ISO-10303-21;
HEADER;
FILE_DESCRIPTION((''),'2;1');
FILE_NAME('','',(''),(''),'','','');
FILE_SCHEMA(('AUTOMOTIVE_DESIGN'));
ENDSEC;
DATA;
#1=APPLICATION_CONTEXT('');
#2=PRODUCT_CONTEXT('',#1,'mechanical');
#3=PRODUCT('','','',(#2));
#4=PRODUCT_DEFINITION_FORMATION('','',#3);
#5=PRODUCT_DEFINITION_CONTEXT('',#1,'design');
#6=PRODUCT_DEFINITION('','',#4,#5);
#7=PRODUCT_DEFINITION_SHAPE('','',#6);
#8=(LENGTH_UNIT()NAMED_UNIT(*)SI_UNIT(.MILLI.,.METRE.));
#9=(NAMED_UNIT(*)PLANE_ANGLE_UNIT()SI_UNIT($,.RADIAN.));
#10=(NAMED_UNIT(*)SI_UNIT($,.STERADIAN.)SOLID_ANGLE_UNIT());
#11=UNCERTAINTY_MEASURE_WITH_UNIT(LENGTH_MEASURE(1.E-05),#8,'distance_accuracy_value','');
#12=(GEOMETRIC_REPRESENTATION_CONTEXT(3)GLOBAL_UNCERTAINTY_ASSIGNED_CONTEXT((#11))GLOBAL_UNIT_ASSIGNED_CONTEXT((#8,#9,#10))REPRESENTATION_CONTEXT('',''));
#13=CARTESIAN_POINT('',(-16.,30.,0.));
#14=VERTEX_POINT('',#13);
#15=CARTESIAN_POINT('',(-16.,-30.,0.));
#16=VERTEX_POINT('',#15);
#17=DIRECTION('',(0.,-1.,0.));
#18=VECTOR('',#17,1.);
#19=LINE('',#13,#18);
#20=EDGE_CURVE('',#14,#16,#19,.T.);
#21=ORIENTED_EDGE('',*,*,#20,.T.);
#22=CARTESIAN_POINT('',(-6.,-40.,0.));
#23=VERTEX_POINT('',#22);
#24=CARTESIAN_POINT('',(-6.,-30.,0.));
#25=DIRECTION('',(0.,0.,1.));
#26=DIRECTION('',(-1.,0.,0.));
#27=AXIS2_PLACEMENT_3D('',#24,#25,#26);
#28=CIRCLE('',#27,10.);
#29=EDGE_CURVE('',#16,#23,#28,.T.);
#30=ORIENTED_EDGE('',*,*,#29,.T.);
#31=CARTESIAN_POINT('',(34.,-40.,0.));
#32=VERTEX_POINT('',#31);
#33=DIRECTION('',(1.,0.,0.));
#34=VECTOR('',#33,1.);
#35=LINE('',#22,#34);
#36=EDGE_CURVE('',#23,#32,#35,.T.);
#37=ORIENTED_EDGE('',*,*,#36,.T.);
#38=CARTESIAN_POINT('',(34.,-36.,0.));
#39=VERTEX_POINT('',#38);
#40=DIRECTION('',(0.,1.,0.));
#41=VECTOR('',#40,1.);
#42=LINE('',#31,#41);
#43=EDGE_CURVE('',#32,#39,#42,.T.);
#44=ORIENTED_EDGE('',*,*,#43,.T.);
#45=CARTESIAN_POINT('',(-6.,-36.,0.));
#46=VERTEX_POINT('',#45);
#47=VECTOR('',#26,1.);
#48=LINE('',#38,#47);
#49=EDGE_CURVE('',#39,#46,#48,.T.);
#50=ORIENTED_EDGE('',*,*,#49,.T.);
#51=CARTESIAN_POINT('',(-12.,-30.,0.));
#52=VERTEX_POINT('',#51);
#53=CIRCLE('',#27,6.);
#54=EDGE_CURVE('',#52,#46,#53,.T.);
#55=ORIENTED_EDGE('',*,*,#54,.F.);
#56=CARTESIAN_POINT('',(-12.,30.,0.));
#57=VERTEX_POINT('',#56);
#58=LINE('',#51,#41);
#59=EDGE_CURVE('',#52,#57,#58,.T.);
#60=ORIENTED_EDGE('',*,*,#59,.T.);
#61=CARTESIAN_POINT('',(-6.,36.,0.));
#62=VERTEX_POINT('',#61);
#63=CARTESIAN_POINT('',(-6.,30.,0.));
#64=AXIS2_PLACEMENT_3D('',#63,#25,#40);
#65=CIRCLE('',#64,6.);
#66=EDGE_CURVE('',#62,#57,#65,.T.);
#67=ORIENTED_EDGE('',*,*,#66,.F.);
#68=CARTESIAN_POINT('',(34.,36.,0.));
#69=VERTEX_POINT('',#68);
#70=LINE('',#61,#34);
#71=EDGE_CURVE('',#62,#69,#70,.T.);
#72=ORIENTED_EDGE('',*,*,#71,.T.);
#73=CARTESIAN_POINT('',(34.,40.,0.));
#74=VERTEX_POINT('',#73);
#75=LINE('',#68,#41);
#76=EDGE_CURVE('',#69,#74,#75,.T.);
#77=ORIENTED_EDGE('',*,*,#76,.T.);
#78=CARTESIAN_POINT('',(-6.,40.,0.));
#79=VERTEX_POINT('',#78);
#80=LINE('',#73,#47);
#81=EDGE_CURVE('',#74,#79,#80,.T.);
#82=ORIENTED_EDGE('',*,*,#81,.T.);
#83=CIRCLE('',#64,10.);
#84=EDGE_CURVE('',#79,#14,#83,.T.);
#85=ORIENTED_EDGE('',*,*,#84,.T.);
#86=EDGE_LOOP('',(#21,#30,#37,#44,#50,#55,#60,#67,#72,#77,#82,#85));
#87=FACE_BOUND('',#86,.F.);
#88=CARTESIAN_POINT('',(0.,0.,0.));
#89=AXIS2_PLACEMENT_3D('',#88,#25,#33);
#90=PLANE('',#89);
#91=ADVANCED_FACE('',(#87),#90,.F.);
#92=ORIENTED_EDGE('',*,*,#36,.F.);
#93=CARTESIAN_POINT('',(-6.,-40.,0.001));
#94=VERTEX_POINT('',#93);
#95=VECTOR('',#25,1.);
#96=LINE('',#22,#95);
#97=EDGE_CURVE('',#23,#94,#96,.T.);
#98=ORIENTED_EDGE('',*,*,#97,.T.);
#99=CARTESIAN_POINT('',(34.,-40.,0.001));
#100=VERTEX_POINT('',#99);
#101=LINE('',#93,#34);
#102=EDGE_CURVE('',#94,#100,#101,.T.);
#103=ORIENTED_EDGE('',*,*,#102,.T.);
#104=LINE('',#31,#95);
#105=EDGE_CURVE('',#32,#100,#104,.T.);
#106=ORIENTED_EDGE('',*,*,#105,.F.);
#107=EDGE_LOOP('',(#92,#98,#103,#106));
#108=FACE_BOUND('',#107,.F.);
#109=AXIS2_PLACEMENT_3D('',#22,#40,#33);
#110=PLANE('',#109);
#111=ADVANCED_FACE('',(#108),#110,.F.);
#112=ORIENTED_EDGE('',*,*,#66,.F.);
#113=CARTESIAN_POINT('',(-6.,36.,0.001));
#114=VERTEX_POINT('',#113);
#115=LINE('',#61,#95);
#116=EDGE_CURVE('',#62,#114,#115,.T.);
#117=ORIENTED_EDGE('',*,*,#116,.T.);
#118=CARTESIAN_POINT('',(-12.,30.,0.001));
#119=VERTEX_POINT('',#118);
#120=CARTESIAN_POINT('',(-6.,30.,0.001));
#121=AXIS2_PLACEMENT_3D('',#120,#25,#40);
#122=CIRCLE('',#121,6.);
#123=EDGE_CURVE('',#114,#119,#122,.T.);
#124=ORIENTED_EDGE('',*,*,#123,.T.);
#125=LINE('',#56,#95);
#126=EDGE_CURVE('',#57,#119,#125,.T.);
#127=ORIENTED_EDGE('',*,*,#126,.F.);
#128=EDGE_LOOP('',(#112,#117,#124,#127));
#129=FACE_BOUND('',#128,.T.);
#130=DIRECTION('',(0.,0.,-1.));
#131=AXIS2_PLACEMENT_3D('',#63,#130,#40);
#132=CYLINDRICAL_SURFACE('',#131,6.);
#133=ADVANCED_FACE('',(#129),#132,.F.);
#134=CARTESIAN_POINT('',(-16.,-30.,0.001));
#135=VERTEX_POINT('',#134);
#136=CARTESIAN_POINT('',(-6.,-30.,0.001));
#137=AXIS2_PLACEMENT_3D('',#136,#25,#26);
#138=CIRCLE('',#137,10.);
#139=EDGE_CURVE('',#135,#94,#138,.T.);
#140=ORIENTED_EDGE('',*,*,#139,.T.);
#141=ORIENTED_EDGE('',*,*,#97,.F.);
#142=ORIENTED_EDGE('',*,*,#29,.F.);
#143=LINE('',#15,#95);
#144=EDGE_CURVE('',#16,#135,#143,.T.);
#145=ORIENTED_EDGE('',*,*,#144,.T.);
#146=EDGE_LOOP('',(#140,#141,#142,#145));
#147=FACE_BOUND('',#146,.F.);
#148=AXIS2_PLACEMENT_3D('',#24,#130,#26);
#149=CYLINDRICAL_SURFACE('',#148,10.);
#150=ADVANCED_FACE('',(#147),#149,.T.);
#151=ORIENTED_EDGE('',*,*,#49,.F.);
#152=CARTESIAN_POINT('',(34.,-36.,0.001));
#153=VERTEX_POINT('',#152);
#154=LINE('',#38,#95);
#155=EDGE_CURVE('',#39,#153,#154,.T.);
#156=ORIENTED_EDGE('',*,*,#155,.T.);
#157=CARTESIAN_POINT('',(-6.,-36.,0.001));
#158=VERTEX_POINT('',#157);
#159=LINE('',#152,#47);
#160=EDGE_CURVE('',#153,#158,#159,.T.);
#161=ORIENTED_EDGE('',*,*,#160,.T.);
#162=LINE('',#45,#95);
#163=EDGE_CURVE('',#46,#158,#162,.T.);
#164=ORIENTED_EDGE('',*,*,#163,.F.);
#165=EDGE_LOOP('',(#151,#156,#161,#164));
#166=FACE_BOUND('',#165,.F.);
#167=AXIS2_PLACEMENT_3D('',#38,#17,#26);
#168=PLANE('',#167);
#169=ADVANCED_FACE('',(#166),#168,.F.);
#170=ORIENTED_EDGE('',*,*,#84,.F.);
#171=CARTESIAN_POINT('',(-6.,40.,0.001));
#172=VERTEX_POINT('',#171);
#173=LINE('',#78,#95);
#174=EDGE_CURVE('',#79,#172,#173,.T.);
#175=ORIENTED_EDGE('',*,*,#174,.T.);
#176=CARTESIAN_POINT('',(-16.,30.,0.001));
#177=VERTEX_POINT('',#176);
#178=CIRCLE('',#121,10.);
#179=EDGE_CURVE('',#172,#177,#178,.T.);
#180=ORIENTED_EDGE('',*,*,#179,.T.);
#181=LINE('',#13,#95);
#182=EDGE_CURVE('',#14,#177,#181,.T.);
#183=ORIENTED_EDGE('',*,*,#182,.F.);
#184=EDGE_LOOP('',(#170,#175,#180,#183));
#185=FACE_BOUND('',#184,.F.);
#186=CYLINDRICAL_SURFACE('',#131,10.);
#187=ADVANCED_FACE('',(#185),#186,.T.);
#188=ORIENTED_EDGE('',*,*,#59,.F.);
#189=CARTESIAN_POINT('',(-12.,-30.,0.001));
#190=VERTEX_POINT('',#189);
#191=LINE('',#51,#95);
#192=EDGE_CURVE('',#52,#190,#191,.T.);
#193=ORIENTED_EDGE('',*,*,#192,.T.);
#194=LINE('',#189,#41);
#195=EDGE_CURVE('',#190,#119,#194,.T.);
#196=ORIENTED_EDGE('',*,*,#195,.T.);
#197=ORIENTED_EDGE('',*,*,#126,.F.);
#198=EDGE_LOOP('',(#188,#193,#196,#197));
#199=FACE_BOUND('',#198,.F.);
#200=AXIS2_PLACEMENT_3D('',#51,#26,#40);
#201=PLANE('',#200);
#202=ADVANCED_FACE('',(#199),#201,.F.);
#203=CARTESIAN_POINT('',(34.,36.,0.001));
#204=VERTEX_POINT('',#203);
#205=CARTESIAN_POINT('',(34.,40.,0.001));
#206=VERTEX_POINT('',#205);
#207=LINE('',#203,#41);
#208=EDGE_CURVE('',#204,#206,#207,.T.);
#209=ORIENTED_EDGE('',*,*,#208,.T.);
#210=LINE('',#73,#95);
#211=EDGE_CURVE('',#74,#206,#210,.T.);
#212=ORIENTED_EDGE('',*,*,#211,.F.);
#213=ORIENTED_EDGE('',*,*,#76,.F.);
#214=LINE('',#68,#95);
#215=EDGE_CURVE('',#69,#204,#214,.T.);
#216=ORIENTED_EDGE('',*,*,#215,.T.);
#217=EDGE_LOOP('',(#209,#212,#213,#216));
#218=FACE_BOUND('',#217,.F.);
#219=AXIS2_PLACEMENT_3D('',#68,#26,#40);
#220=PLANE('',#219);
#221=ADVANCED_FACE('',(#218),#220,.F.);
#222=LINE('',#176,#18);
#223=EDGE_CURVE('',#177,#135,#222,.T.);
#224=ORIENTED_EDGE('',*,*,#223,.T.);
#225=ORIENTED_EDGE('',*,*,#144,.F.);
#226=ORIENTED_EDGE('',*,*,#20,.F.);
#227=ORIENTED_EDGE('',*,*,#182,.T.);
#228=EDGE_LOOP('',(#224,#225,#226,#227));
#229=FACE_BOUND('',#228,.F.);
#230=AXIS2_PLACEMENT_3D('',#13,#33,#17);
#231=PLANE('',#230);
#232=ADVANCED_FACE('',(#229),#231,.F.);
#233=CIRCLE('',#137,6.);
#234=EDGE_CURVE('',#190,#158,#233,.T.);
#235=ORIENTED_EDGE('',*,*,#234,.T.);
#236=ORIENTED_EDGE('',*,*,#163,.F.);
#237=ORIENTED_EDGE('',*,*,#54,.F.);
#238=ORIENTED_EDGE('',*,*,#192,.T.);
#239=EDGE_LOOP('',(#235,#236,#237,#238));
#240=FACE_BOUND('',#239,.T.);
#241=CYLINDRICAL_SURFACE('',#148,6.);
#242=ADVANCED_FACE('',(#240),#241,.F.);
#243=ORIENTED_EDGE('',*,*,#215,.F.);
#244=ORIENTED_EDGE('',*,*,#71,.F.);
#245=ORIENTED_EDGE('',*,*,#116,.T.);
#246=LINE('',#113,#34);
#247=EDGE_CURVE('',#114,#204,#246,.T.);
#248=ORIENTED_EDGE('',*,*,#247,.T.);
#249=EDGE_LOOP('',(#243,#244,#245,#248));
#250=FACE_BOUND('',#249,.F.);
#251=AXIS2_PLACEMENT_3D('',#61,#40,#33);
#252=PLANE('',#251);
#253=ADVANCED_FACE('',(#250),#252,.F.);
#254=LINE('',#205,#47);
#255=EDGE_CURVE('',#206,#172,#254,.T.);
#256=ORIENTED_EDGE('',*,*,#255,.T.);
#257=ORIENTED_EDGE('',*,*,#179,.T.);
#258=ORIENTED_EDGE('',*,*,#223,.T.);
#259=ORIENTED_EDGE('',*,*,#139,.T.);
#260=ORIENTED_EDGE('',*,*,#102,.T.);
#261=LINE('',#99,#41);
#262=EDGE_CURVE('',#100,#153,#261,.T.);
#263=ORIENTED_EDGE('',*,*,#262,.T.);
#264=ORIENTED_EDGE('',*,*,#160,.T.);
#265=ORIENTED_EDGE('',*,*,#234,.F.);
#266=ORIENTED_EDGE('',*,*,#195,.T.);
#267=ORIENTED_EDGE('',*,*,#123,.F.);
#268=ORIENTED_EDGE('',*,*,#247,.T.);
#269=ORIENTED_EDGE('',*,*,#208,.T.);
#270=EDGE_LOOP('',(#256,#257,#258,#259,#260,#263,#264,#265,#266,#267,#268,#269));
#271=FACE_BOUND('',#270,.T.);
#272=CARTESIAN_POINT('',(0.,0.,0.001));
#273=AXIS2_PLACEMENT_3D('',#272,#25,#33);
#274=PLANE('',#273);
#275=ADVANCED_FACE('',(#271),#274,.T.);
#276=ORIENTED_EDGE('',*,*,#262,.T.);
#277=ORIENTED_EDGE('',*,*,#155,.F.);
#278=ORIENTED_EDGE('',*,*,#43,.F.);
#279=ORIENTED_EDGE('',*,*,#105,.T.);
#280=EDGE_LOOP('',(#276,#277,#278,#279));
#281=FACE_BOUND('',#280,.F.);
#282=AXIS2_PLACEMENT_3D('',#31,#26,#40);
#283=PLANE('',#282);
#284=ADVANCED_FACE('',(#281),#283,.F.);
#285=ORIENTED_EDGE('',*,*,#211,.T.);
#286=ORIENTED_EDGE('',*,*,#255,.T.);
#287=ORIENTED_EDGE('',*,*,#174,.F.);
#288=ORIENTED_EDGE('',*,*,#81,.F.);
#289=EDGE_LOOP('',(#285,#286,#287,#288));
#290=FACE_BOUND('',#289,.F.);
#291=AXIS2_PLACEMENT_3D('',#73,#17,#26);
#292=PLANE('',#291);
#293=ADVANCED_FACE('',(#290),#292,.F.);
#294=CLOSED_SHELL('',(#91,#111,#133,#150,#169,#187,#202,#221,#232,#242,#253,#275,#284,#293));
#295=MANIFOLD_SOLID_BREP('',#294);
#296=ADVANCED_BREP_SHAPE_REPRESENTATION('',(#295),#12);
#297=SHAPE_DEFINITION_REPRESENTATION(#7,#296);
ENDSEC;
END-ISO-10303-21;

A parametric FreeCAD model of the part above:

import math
import FreeCAD as App
import Part
import Sketcher
Q = App.Units.Quantity

doc = App.newDocument("Part")
body = doc.addObject("PartDesign::Body", "Body")

# Sketch on XY plane
sketch1 = body.newObject("Sketcher::SketchObject", "Sketch")
sketch1.AttachmentSupport = (doc.getObject("XY_Plane"), [""])
sketch1.MapMode = "FlatFace"
sketch1.addGeometry(Part.LineSegment(App.Vector(-6, 36, 0), App.Vector(34, 36, 0)), False)
sketch1.addGeometry(Part.LineSegment(App.Vector(34, 36, 0), App.Vector(34, 40, 0)), False)
sketch1.addGeometry(Part.LineSegment(App.Vector(34, 40, 0), App.Vector(-6, 40, 0)), False)
sketch1.addGeometry(Part.ArcOfCircle(Part.Circle(App.Vector(-6, 30, 0), App.Vector(0, 0, 1), 10), math.radians(90), math.radians(180)), False)
sketch1.addGeometry(Part.LineSegment(App.Vector(-16, 30, 0), App.Vector(-16, -30, 0)), False)
sketch1.addGeometry(Part.ArcOfCircle(Part.Circle(App.Vector(-6, -30, 0), App.Vector(0, 0, 1), 10), math.radians(180), math.radians(270)), False)
sketch1.addGeometry(Part.LineSegment(App.Vector(-6, -40, 0), App.Vector(34, -40, 0)), False)
sketch1.addGeometry(Part.LineSegment(App.Vector(34, -40, 0), App.Vector(34, -36, 0)), False)
sketch1.addGeometry(Part.LineSegment(App.Vector(34, -36, 0), App.Vector(-6, -36, 0)), False)
sketch1.addGeometry(Part.ArcOfCircle(Part.Circle(App.Vector(-6, -30, 0), App.Vector(0, 0, 1), 6), math.radians(180), math.radians(270)), False)
sketch1.addGeometry(Part.LineSegment(App.Vector(-12, -30, 0), App.Vector(-12, 30, 0)), False)
sketch1.addGeometry(Part.ArcOfCircle(Part.Circle(App.Vector(-6, 30, 0), App.Vector(0, 0, 1), 6), math.radians(90), math.radians(180)), False)
sketch1.addConstraint(Sketcher.Constraint("Coincident", 0, 2, 1, 1))
sketch1.addConstraint(Sketcher.Constraint("Coincident", 1, 2, 2, 1))
sketch1.addConstraint(Sketcher.Constraint("Tangent", 2, 2, 3, 1))
sketch1.addConstraint(Sketcher.Constraint("Tangent", 3, 2, 4, 1))
sketch1.addConstraint(Sketcher.Constraint("Tangent", 4, 2, 5, 1))
sketch1.addConstraint(Sketcher.Constraint("Tangent", 5, 2, 6, 1))
sketch1.addConstraint(Sketcher.Constraint("Coincident", 6, 2, 7, 1))
sketch1.addConstraint(Sketcher.Constraint("Coincident", 7, 2, 8, 1))
sketch1.addConstraint(Sketcher.Constraint("Tangent", 8, 2, 9, 2))
sketch1.addConstraint(Sketcher.Constraint("Tangent", 9, 1, 10, 1))
sketch1.addConstraint(Sketcher.Constraint("Tangent", 10, 2, 11, 2))
sketch1.addConstraint(Sketcher.Constraint("Tangent", 11, 1, 0, 1))
sketch1.addConstraint(Sketcher.Constraint("Horizontal", 0))
sketch1.addConstraint(Sketcher.Constraint("Vertical", 1))
sketch1.addConstraint(Sketcher.Constraint("Horizontal", 2))
sketch1.addConstraint(Sketcher.Constraint("Vertical", 4))
sketch1.addConstraint(Sketcher.Constraint("Horizontal", 6))
sketch1.addConstraint(Sketcher.Constraint("Vertical", 7))
sketch1.addConstraint(Sketcher.Constraint("Horizontal", 8))
sketch1.addConstraint(Sketcher.Constraint("Vertical", 10))
sketch1.addConstraint(Sketcher.Constraint("Coincident", 9, 3, 5, 3))
sketch1.addConstraint(Sketcher.Constraint("Coincident", 11, 3, 3, 3))
sketch1.addConstraint(Sketcher.Constraint("Equal", 3, 5))
sketch1.addConstraint(Sketcher.Constraint("Symmetric", 1, 2, 6, 2, -1))
sketch1.addConstraint(Sketcher.Constraint("Radius", 3, Q("10 mm")))
sketch1.addConstraint(Sketcher.Constraint("Radius", 9, Q("6 mm")))
sketch1.addConstraint(Sketcher.Constraint("DistanceX", 0, 1, 0, 2, Q("40 mm")))
sketch1.addConstraint(Sketcher.Constraint("DistanceX", 3, 3, -1, 1, Q("6 mm")))
sketch1.addConstraint(Sketcher.Constraint("DistanceY", -1, 1, 1, 2, Q("40 mm")))
pad1 = body.newObject("PartDesign::Pad", "Pad")
pad1.Profile = sketch1
pad1.Length = 0.001

doc.recompute()
